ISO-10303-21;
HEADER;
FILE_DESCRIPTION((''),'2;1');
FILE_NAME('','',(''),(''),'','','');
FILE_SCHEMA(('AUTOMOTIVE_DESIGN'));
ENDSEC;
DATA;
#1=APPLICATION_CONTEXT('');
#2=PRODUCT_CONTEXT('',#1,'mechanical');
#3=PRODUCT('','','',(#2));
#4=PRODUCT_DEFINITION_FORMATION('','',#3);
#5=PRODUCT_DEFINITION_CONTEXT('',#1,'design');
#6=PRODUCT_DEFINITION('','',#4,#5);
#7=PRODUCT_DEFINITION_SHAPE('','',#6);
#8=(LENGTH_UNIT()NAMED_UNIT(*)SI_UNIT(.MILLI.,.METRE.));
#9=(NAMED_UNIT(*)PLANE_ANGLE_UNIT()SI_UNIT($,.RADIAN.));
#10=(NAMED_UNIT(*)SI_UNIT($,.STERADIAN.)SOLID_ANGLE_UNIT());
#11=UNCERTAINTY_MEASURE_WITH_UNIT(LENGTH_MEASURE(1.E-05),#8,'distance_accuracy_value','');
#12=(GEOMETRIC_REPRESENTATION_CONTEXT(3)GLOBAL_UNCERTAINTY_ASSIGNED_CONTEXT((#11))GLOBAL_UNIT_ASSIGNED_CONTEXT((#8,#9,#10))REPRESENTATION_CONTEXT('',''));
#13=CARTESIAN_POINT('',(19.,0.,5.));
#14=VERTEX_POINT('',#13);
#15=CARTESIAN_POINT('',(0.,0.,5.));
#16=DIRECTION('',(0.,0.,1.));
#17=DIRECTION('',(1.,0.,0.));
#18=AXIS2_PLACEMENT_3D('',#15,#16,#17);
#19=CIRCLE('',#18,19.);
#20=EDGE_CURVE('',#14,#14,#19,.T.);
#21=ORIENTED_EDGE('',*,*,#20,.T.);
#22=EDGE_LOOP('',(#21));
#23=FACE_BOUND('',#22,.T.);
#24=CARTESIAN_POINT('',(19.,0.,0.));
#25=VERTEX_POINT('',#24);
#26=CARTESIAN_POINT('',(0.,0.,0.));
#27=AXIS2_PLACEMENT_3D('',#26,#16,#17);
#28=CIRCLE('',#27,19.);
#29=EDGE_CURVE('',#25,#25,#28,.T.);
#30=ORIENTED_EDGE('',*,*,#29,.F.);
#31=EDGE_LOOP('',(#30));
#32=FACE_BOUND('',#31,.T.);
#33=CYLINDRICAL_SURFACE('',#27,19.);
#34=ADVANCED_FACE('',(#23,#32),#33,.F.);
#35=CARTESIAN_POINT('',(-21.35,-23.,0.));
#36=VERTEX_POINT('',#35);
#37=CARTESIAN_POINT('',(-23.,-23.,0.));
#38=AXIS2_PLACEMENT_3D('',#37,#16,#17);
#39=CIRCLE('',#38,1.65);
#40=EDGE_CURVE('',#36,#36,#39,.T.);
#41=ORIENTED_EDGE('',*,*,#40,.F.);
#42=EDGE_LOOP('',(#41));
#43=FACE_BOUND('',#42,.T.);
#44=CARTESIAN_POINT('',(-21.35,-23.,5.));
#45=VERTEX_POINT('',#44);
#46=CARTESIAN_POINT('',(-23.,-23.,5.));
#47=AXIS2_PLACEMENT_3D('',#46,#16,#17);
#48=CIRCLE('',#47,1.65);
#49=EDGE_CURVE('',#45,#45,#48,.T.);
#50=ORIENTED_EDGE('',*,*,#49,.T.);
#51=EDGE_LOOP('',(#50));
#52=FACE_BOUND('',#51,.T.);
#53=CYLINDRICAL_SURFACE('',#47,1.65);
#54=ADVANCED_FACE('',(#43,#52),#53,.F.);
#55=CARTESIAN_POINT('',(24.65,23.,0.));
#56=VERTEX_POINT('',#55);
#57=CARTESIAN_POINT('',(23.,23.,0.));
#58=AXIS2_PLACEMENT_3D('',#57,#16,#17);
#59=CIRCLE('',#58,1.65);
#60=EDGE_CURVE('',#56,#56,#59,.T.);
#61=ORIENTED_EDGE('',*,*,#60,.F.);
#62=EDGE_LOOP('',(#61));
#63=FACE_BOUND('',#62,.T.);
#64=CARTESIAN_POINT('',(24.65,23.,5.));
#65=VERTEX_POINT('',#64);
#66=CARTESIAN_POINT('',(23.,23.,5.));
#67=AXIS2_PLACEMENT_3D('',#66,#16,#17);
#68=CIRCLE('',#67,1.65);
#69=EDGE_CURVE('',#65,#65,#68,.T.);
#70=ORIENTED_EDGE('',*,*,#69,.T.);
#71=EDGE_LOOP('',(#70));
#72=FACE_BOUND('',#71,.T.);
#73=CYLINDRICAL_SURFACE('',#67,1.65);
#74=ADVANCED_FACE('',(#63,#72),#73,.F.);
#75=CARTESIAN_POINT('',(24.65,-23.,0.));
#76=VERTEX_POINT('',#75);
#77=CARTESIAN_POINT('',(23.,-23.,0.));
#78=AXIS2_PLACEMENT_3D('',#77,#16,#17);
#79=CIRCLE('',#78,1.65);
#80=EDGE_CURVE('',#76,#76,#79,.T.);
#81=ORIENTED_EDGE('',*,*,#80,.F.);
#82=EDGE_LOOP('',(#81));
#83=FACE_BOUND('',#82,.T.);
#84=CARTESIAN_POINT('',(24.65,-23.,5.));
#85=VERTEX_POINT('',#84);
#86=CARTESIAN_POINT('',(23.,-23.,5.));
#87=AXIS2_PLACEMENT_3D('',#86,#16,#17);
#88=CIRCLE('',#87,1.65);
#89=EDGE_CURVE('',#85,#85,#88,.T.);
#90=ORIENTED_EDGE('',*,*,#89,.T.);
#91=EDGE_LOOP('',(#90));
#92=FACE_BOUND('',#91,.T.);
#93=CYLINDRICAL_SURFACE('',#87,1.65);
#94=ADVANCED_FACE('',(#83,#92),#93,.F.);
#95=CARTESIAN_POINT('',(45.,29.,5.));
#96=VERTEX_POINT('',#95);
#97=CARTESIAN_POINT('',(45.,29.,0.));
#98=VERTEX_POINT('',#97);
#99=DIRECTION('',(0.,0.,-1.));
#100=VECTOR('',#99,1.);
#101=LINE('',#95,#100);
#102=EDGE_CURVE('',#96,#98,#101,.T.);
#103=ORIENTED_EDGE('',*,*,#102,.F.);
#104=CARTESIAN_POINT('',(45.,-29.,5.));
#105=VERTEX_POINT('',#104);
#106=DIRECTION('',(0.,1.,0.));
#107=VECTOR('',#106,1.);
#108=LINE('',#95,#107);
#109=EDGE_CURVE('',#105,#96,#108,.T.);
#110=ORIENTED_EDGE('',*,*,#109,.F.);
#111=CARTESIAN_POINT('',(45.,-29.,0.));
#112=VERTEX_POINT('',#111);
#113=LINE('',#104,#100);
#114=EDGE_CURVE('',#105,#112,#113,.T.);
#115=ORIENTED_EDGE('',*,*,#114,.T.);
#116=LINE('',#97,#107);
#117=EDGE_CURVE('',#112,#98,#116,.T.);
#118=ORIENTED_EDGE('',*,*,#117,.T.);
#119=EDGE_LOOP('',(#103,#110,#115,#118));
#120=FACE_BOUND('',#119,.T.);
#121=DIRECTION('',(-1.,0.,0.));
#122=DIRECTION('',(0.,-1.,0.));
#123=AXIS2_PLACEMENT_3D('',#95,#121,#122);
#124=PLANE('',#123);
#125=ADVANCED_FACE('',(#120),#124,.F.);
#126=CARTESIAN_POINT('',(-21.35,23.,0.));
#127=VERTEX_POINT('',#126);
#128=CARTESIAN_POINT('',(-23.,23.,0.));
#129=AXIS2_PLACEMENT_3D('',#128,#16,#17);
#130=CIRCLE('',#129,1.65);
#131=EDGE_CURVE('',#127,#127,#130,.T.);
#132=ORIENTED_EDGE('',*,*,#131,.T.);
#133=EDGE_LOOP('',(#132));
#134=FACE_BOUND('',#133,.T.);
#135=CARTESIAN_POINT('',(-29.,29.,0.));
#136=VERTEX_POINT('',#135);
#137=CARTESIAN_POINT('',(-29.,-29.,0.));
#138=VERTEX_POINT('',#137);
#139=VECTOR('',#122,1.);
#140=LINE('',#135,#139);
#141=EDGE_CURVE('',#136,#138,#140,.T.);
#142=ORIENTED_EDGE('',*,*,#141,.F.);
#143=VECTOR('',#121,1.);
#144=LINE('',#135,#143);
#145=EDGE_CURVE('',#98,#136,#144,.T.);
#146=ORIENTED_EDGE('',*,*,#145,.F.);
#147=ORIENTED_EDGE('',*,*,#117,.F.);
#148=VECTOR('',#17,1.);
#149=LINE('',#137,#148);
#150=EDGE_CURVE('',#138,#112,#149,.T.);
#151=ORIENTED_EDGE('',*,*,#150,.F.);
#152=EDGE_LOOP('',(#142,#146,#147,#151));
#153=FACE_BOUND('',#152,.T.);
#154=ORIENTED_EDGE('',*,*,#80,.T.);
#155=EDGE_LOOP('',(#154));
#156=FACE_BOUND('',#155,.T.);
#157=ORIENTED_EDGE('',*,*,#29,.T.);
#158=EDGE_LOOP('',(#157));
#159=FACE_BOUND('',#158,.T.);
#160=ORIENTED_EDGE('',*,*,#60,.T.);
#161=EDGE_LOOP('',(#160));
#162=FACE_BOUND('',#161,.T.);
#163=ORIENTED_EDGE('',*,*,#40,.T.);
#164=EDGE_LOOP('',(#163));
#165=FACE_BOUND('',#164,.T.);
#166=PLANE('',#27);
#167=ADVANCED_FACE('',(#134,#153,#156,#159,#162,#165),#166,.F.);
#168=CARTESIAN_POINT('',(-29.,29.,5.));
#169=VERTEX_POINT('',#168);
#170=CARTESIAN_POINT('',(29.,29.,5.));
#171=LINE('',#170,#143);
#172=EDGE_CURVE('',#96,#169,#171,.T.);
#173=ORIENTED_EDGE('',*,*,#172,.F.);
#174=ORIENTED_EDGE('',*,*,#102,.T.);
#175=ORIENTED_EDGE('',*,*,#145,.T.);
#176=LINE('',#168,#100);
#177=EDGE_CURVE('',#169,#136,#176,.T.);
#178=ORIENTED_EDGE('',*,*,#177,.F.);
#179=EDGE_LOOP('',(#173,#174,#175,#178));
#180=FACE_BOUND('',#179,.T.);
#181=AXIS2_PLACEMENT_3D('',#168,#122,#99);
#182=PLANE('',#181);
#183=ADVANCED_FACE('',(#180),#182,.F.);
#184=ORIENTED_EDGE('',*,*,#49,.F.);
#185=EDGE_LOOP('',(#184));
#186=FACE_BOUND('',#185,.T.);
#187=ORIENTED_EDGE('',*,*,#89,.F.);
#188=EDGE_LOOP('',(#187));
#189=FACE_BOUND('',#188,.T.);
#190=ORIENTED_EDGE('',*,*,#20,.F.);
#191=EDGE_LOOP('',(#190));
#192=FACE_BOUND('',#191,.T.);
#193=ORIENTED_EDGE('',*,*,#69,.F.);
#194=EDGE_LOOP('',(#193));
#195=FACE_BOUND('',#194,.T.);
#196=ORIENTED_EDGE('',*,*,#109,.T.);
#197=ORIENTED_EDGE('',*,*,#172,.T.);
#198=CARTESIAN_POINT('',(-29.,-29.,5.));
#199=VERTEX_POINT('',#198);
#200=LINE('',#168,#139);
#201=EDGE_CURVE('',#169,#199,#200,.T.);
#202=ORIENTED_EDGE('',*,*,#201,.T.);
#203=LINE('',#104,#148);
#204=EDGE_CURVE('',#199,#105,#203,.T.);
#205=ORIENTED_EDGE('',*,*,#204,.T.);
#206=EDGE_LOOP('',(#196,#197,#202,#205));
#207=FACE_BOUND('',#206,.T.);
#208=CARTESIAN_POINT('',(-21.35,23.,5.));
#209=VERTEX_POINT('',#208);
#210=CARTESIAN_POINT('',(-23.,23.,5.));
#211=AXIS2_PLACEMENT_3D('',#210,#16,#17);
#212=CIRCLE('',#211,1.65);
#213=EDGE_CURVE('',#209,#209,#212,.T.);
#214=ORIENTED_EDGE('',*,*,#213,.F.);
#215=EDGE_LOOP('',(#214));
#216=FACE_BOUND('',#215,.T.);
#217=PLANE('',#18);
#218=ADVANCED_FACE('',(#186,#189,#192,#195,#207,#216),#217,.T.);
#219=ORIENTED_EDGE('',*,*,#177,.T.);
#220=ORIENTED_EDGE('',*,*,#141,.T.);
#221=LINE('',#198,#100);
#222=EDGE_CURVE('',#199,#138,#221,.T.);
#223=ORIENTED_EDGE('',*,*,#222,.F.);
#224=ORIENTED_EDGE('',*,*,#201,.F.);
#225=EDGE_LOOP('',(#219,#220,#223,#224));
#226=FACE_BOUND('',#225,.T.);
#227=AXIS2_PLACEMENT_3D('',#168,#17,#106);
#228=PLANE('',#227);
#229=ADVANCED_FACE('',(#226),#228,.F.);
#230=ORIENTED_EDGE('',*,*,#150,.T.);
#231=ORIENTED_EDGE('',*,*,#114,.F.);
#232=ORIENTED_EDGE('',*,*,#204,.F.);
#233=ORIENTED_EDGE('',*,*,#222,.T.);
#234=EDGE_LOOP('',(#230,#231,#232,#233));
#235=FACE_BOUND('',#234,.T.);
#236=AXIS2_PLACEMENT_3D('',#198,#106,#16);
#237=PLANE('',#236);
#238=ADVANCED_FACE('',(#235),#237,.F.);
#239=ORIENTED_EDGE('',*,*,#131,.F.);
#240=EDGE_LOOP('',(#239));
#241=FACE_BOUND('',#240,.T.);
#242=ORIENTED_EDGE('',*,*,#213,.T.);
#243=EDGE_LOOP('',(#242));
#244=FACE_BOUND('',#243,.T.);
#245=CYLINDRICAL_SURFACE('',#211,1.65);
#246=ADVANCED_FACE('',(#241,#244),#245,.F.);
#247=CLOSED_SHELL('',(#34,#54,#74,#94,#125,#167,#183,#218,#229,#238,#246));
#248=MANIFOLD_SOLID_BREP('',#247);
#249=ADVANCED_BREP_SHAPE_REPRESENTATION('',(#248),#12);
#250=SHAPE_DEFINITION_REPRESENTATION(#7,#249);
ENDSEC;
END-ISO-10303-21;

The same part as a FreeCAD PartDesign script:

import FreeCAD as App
import Part
import Sketcher

V = App.Vector


def add_polygon(sketch, points):
    """Adds a closed chain of lines whose ends are joined by coincident constraints."""
    first, n = sketch.GeometryCount, len(points)
    for a, b in zip(points, points[1:] + points[:1]):
        sketch.addGeometry(Part.LineSegment(App.Vector(*a, 0), App.Vector(*b, 0)), False)
    for i in range(n):
        sketch.addConstraint(Sketcher.Constraint("Coincident", first + i, 2, first + (i + 1) % n, 1))

doc = App.newDocument("Part")
body = doc.addObject("PartDesign::Body", "Body")

# Sketch on XY plane
sketch1 = body.newObject("Sketcher::SketchObject", "Sketch")
sketch1.AttachmentSupport = (doc.getObject("XY_Plane"), [""])
sketch1.MapMode = "FlatFace"
add_polygon(sketch1, [(45, 29), (-29, 29), (-29, -29), (45, -29)])  # lines 0-3
sketch1.addConstraint([
    Sketcher.Constraint("Horizontal", 0),
    Sketcher.Constraint("Vertical", 1),
    Sketcher.Constraint("Horizontal", 2),
    Sketcher.Constraint("Vertical", 3),
    Sketcher.Constraint("DistanceX", 0, 2, 0, 1, 74.0),
    Sketcher.Constraint("DistanceY", 1, 2, 1, 1, 58.0),
    Sketcher.Constraint("DistanceX", 0, 2, -1, 1, 29.0),
    Sketcher.Constraint("DistanceY", -1, 1, 0, 2, 29.0),
])
pad1 = body.newObject("PartDesign::Pad", "Pad")
pad1.Profile = sketch1
pad1.Length = 5

# Sketch on XY plane
sketch2 = body.newObject("Sketcher::SketchObject", "Sketch001")
sketch2.AttachmentSupport = (doc.getObject("XY_Plane"), [""])
sketch2.MapMode = "FlatFace"
sketch2.AttachmentOffset = App.Placement(V(0, 0, 5), App.Rotation())
sketch2.addGeometry([
    Part.Circle(V(-23, 23, 0), V(0, 0, 1), 1.6),
    Part.Circle(V(23, 23, 0), V(0, 0, 1), 1.6),
], False)
sketch2.addConstraint([
    Sketcher.Constraint("Equal", 0, 1),
    Sketcher.Constraint("Symmetric", 0, 3, 1, 3, -2),
    Sketcher.Constraint("Diameter", 0, 3.3),
    Sketcher.Constraint("DistanceX", 0, 3, -1, 1, 23.0),
    Sketcher.Constraint("DistanceY", -1, 1, 0, 3, 23.0),
])
doc.recompute()
hole = body.newObject("PartDesign::Hole", "Hole")
hole.Profile = sketch2
hole.ThreadType = "None"
hole.Diameter = 3.3
hole.DepthType = "ThroughAll"
doc.recompute()

mirrored = body.newObject("PartDesign::Mirrored", "Mirrored")
mirrored.Originals = [hole]
mirrored.MirrorPlane = (doc.getObject("XZ_Plane"), [""])
body.Tip = mirrored

# Sketch on XY plane
sketch3 = body.newObject("Sketcher::SketchObject", "Sketch002")
sketch3.AttachmentSupport = (doc.getObject("XY_Plane"), [""])
sketch3.MapMode = "FlatFace"
sketch3.AttachmentOffset = App.Placement(V(0, 0, 5), App.Rotation())
sketch3.addGeometry(Part.Circle(V(0, 0, 0), V(0, 0, 1), 19), False)
sketch3.addConstraint([
    Sketcher.Constraint("Coincident", 0, 3, -1, 1),
    Sketcher.Constraint("Diameter", 0, 38.0),
])
pocket1 = body.newObject("PartDesign::Pocket", "Pocket")
pocket1.Profile = sketch3
pocket1.Type = "ThroughAll"

doc.recompute()
